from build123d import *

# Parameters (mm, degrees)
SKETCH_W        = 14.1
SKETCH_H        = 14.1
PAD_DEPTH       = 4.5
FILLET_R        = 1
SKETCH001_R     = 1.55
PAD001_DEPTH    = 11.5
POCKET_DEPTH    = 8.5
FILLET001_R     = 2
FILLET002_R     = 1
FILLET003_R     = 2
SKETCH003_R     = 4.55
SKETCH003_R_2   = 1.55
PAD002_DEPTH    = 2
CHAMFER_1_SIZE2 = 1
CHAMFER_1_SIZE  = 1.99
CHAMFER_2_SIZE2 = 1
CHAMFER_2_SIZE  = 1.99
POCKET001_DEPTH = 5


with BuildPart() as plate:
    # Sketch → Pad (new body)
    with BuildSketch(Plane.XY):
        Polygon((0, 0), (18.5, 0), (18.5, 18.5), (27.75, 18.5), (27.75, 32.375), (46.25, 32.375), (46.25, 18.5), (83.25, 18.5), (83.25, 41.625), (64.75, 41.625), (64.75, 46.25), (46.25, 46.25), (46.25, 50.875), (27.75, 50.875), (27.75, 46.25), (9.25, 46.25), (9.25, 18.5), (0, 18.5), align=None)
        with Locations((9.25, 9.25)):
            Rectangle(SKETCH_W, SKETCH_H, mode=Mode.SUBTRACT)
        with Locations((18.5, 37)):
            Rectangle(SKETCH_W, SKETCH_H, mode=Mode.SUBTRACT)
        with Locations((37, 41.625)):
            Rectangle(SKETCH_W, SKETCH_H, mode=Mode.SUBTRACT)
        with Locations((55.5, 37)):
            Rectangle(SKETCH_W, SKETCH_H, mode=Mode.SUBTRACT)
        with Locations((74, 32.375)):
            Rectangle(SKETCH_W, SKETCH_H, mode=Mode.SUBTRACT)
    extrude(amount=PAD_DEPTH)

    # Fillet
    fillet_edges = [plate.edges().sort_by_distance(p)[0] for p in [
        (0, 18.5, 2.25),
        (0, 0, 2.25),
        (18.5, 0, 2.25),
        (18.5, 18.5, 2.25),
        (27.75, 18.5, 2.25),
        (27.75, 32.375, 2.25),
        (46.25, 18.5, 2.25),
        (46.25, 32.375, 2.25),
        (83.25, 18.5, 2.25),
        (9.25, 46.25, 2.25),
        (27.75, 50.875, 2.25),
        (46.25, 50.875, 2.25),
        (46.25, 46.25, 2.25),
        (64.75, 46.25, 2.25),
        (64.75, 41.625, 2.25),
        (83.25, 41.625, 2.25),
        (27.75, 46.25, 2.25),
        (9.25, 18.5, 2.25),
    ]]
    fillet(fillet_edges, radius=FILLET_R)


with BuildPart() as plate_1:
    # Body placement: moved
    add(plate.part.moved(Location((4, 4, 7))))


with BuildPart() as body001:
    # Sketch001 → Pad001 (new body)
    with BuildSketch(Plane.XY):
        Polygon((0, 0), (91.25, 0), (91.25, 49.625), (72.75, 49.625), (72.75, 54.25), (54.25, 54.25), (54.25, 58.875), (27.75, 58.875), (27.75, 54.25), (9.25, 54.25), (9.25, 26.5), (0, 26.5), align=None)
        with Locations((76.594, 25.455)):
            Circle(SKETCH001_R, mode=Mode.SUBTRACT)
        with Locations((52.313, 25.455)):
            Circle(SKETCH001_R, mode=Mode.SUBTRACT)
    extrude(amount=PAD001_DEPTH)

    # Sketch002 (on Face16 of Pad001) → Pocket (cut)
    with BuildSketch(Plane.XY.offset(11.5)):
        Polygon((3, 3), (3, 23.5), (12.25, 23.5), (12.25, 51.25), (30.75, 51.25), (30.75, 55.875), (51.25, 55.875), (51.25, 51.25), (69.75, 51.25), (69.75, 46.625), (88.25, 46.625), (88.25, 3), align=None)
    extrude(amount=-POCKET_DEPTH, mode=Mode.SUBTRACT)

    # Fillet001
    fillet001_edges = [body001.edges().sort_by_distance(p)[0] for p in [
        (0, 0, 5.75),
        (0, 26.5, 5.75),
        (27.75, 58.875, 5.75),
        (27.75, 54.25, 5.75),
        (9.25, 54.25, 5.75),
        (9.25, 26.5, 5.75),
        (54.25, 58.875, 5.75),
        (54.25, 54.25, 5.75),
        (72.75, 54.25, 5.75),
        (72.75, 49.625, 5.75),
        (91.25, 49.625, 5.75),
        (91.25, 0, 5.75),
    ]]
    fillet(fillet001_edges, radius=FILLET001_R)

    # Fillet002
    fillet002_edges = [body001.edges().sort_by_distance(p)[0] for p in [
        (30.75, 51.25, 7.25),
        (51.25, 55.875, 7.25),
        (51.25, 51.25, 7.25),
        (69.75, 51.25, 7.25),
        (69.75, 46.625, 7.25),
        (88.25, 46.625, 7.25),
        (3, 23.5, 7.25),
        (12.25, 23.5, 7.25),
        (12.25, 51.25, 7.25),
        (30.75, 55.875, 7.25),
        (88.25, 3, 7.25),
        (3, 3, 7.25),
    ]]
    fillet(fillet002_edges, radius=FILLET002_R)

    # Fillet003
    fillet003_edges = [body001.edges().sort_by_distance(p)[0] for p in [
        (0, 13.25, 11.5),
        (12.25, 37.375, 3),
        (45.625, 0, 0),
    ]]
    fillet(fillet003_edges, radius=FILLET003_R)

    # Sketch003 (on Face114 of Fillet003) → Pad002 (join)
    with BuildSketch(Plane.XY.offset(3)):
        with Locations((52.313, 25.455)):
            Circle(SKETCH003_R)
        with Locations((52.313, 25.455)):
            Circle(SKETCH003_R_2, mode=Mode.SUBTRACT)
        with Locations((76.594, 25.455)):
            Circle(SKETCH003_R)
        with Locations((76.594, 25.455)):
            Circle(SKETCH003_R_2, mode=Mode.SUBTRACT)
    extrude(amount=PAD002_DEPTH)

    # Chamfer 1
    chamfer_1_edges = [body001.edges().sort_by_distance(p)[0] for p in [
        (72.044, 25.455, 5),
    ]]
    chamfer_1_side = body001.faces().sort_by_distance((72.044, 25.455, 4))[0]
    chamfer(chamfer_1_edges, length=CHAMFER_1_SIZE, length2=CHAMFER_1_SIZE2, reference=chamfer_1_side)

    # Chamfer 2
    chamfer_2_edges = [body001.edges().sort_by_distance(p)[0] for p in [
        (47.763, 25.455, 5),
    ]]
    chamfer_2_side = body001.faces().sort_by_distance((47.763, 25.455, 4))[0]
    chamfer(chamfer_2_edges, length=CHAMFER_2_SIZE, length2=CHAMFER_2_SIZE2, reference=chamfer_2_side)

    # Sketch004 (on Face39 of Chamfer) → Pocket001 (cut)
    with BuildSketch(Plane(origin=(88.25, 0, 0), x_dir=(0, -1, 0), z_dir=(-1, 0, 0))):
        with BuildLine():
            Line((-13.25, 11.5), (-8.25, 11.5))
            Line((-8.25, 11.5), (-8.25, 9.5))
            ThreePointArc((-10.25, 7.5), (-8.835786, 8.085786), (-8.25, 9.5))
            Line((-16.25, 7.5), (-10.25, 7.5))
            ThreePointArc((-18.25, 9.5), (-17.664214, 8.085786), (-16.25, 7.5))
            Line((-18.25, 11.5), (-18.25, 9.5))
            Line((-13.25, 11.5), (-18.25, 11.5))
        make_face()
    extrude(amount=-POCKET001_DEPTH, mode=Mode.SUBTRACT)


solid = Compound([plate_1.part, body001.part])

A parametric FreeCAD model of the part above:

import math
import FreeCAD as App
import Part
import Sketcher
from FreeCAD import Vector


def edges_at(feature, points):
    """Names of the edges that pass closest to the given points."""
    edges = feature.Shape.Edges
    near = lambda p: min(range(len(edges)), key=lambda i: edges[i].distToShape(Part.Vertex(*p))[0])
    return sorted({f"Edge{near(p) + 1}" for p in points})


def add_polygon(sketch, points):
    """Adds a closed chain of lines whose ends are joined by coincident constraints."""
    first, n = sketch.GeometryCount, len(points)
    for a, b in zip(points, points[1:] + points[:1]):
        sketch.addGeometry(Part.LineSegment(App.Vector(*a, 0), App.Vector(*b, 0)), False)
    for i in range(n):
        sketch.addConstraint(Sketcher.Constraint("Coincident", first + i, 2, first + (i + 1) % n, 1))

doc = App.newDocument("Part")
body = doc.addObject("PartDesign::Body", "Body")

sketch1 = body.newObject("Sketcher::SketchObject", "Sketch")
sketch1.AttachmentSupport = (doc.getObject("XY_Plane"), [""])
sketch1.MapMode = "FlatFace"
add_polygon(sketch1, [(0, 0), (18.5, 0), (18.5, 18.5), (27.8, 18.5), (27.8, 32.4), (46.2, 32.4), (46.2, 18.5), (83.2, 18.5), (83.2, 41.6), (64.8, 41.6), (64.8, 46.2), (46.2, 46.2), (46.2, 50.9), (27.8, 50.9), (27.8, 46.2), (9.2, 46.2), (9.2, 18.5), (0, 18.5)])
add_polygon(sketch1, [(16.3, 2.2), (2.2, 2.2), (2.2, 16.3), (16.3, 16.3)])
add_polygon(sketch1, [(25.6, 29.9), (11.4, 29.9), (11.4, 44), (25.6, 44)])
add_polygon(sketch1, [(44, 34.6), (29.9, 34.6), (29.9, 48.7), (44, 48.7)])
add_polygon(sketch1, [(62.5, 29.9), (48.5, 29.9), (48.5, 44), (62.5, 44)])
add_polygon(sketch1, [(81, 25.3), (67, 25.3), (67, 39.4), (81, 39.4)])
sketch1.addConstraint([
    Sketcher.Constraint("Horizontal", 0),
    Sketcher.Constraint("Vertical", 1),
    Sketcher.Constraint("Horizontal", 2),
    Sketcher.Constraint("Vertical", 3),
    Sketcher.Constraint("Horizontal", 4),
    Sketcher.Constraint("Vertical", 5),
    Sketcher.Constraint("Horizontal", 6),
    Sketcher.Constraint("Vertical", 7),
    Sketcher.Constraint("Horizontal", 8),
    Sketcher.Constraint("Vertical", 9),
    Sketcher.Constraint("Horizontal", 10),
    Sketcher.Constraint("Vertical", 11),
    Sketcher.Constraint("Horizontal", 12),
    Sketcher.Constraint("Vertical", 13),
    Sketcher.Constraint("Horizontal", 14),
    Sketcher.Constraint("Vertical", 15),
    Sketcher.Constraint("Horizontal", 16),
    Sketcher.Constraint("Vertical", 17),
    Sketcher.Constraint("Horizontal", 18),
    Sketcher.Constraint("Vertical", 19),
    Sketcher.Constraint("Horizontal", 20),
    Sketcher.Constraint("Vertical", 21),
    Sketcher.Constraint("Horizontal", 22),
    Sketcher.Constraint("Vertical", 23),
    Sketcher.Constraint("Horizontal", 24),
    Sketcher.Constraint("Vertical", 25),
    Sketcher.Constraint("Horizontal", 26),
    Sketcher.Constraint("Vertical", 27),
    Sketcher.Constraint("Horizontal", 28),
    Sketcher.Constraint("Vertical", 29),
    Sketcher.Constraint("Horizontal", 30),
    Sketcher.Constraint("Vertical", 31),
    Sketcher.Constraint("Horizontal", 32),
    Sketcher.Constraint("Vertical", 33),
    Sketcher.Constraint("Horizontal", 34),
    Sketcher.Constraint("Vertical", 35),
    Sketcher.Constraint("Horizontal", 36),
    Sketcher.Constraint("Vertical", 37),
    Sketcher.Constraint("Coincident", 17, 2, -1, 1),
    Sketcher.Constraint("Horizontal", 2, 2, 5, 2),
    Sketcher.Constraint("Horizontal", 10, 2, 13, 2),
    Sketcher.Constraint("Horizontal", 6, 2, 15, 2),
    Sketcher.Constraint("Horizontal", 25, 2, 30, 2),
    Sketcher.Constraint("Horizontal", 24, 2, 31, 2),
    Sketcher.Constraint("Vertical", 5, 2, 10, 2),
    Sketcher.Constraint("Vertical", 3, 2, 12, 2),
    Sketcher.Constraint("Equal", 0, 4),
    Sketcher.Constraint("Equal", 4, 8),
    Sketcher.Constraint("Equal", 8, 10),
    Sketcher.Constraint("Equal", 12, 14),
    Sketcher.Constraint("Equal", 20, 22),
    Sketcher.Constraint("Equal", 24, 26),
    Sketcher.Constraint("Equal", 28, 30),
    Sketcher.Constraint("Equal", 32, 34),
    Sketcher.Constraint("Equal", 14, 1),
    Sketcher.Constraint("Equal", 9, 11),
    Sketcher.Constraint("Equal", 36, 19),
    Sketcher.Constraint("Equal", 21, 23),
    Sketcher.Constraint("Equal", 25, 27),
    Sketcher.Constraint("Equal", 33, 35),
    Sketcher.Constraint("DistanceX", 6, 1, 6, 2, 37.0),
    Sketcher.Constraint("DistanceX", 18, 2, 18, 1, 14.1),
    Sketcher.Constraint("DistanceX", 2, 1, 2, 2, 9.25),
    Sketcher.Constraint("DistanceY", 15, 2, 15, 1, 27.75),
    Sketcher.Constraint("DistanceX", -1, 1, 18, 2, 2.2),
    Sketcher.Constraint("DistanceY", -1, 1, 18, 2, 2.2),
    Sketcher.Constraint("DistanceY", 4, 2, 11, 2, 18.5),
    Sketcher.Constraint("DistanceX", 15, 2, 22, 2, 2.2),
    Sketcher.Constraint("DistanceY", 22, 2, 14, 2, 16.3),
    Sketcher.Constraint("DistanceX", 3, 2, 26, 2, 2.2),
    Sketcher.Constraint("DistanceY", 3, 2, 26, 2, 2.2),
    Sketcher.Constraint("DistanceX", 4, 2, 30, 2, 2.2),
    Sketcher.Constraint("DistanceX", 33, 2, 34, 2, 4.4),
    Sketcher.Constraint("DistanceY", 34, 2, 8, 2, 16.3),
    Sketcher.Constraint("DistanceY", 3, 1, 3, 2, 13.875),
])
pad1 = body.newObject("PartDesign::Pad", "Pad")
pad1.Profile = sketch1
pad1.Length = 4.5
doc.recompute()

fillet = body.newObject("PartDesign::Fillet", "Fillet")
fillet.Base = (pad1, edges_at(pad1, [
    (0, 18.5, 2.25),
    (0, 0, 2.25),
    (18.5, 0, 2.25),
    (18.5, 18.5, 2.25),
    (27.75, 18.5, 2.25),
    (27.75, 32.375, 2.25),
    (46.25, 18.5, 2.25),
    (46.25, 32.375, 2.25),
    (83.25, 18.5, 2.25),
    (9.25, 46.25, 2.25),
    (27.75, 50.875, 2.25),
    (46.25, 50.875, 2.25),
    (46.25, 46.25, 2.25),
    (64.75, 46.25, 2.25),
    (64.75, 41.625, 2.25),
    (83.25, 41.625, 2.25),
    (27.75, 46.25, 2.25),
    (9.25, 18.5, 2.25),
]))
fillet.Radius = 1
body2 = doc.addObject("PartDesign::Body", "Body001")
doc.recompute()

body.Placement = App.Placement(Vector(4, 4, 7), App.Rotation(Vector(0, 0, 1), 0))
boolean = body2.newObject("PartDesign::Boolean", "Boolean")
boolean.Type = "Fuse"
boolean.addObjects([body])
body3 = doc.addObject("PartDesign::Body", "Body002")

sketch2 = body3.newObject("Sketcher::SketchObject", "Sketch001")
sketch2.AttachmentSupport = (doc.getObject("XY_Plane002"), [""])
sketch2.MapMode = "FlatFace"
add_polygon(sketch2, [(0, 0), (91.2, 0), (91.2, 49.6), (72.8, 49.6), (72.8, 54.2), (54.2, 54.2), (54.2, 58.9), (27.8, 58.9), (27.8, 54.2), (9.2, 54.2), (9.2, 26.5), (0, 26.5)])
sketch2.addGeometry(Part.Circle(Vector(52.3, 25.5, 0), Vector(0, 0, 1), 1.6), False)
sketch2.addGeometry(Part.Circle(Vector(76.6, 25.5, 0), Vector(0, 0, 1), 1.6), False)
sketch2.addConstraint([
    Sketcher.Constraint("Horizontal", 0),
    Sketcher.Constraint("Vertical", 1),
    Sketcher.Constraint("Horizontal", 2),
    Sketcher.Constraint("Vertical", 3),
    Sketcher.Constraint("Horizontal", 4),
    Sketcher.Constraint("Vertical", 5),
    Sketcher.Constraint("Horizontal", 6),
    Sketcher.Constraint("Vertical", 7),
    Sketcher.Constraint("Horizontal", 8),
    Sketcher.Constraint("Vertical", 9),
    Sketcher.Constraint("Horizontal", 10),
    Sketcher.Constraint("Vertical", 11),
    Sketcher.Constraint("Coincident", 11, 2, -1, 1),
    Sketcher.Constraint("Equal", 12, 13),
    Sketcher.Constraint("Horizontal", 12, 3, 13, 3),
    Sketcher.Constraint("Horizontal", 4, 2, 7, 2),
    Sketcher.Constraint("Equal", 2, 4),
    Sketcher.Constraint("Equal", 4, 8),
    Sketcher.Constraint("Equal", 3, 5),
    Sketcher.Constraint("Equal", 6, 11),
    Sketcher.Constraint("Diameter", 12, 3.1),
    Sketcher.Constraint("DistanceX", 2, 2, 2, 1, 18.5),
    Sketcher.Constraint("DistanceX", 6, 2, 6, 1, 26.5),
    Sketcher.Constraint("DistanceX", 0, 1, 0, 2, 91.25),
    Sketcher.Constraint("DistanceY", 9, 2, 9, 1, 27.75),
    Sketcher.Constraint("DistanceY", 1, 1, 1, 2, 49.625),
    Sketcher.Constraint("DistanceY", 13, 3, 1, 2, 24.17),
    Sketcher.Constraint("DistanceX", -1, 1, 12, 3, 52.313),
    Sketcher.Constraint("DistanceX", -1, 1, 13, 3, 76.594),
])
pad2 = body3.newObject("PartDesign::Pad", "Pad001")
pad2.Profile = sketch2
pad2.Length = 11.5

sketch3 = body3.newObject("Sketcher::SketchObject", "Sketch002")
sketch3.AttachmentSupport = (doc.getObject("XY_Plane002"), [""])
sketch3.MapMode = "FlatFace"
sketch3.AttachmentOffset = App.Placement(Vector(0, 0, 11.5), App.Rotation())
add_polygon(sketch3, [(3, 23.5), (3, 3), (88.2, 3), (88.2, 46.6), (69.8, 46.6), (69.8, 51.2), (51.2, 51.2), (51.2, 55.9), (30.8, 55.9), (30.8, 51.2), (12.2, 51.2), (12.2, 23.5)])
sketch3.addConstraint([
    Sketcher.Constraint("Vertical", 0),
    Sketcher.Constraint("Horizontal", 1),
    Sketcher.Constraint("Vertical", 2),
    Sketcher.Constraint("Horizontal", 3),
    Sketcher.Constraint("Vertical", 4),
    Sketcher.Constraint("Horizontal", 5),
    Sketcher.Constraint("Vertical", 6),
    Sketcher.Constraint("Horizontal", 7),
    Sketcher.Constraint("Vertical", 8),
    Sketcher.Constraint("Horizontal", 9),
    Sketcher.Constraint("Vertical", 10),
    Sketcher.Constraint("Horizontal", 11),
    Sketcher.Constraint("Horizontal", 5, 2, 8, 2),
    Sketcher.Constraint("Equal", 3, 5),
    Sketcher.Constraint("Equal", 5, 9),
    Sketcher.Constraint("Equal", 7, 0),
    Sketcher.Constraint("Equal", 4, 6),
    Sketcher.Constraint("DistanceX", 3, 2, 3, 1, 18.5),
    Sketcher.Constraint("DistanceX", 7, 2, 7, 1, 20.5),
    Sketcher.Constraint("DistanceX", -1, 1, 0, 2, 3.0),
    Sketcher.Constraint("DistanceY", -1, 1, 0, 2, 3.0),
    Sketcher.Constraint("DistanceX", 1, 1, 1, 2, 85.25),
    Sketcher.Constraint("DistanceY", 10, 2, 10, 1, 27.75),
    Sketcher.Constraint("DistanceY", 2, 1, 2, 2, 43.625),
])
pocket1 = body3.newObject("PartDesign::Pocket", "Pocket")
pocket1.Profile = sketch3
pocket1.Length = 8.5
doc.recompute()

fillet2 = body3.newObject("PartDesign::Fillet", "Fillet001")
fillet2.Base = (pocket1, edges_at(pocket1, [
    (0, 0, 5.75),
    (0, 26.5, 5.75),
    (27.75, 58.875, 5.75),
    (27.75, 54.25, 5.75),
    (9.25, 54.25, 5.75),
    (9.25, 26.5, 5.75),
    (54.25, 58.875, 5.75),
    (54.25, 54.25, 5.75),
    (72.75, 54.25, 5.75),
    (72.75, 49.625, 5.75),
    (91.25, 49.625, 5.75),
    (91.25, 0, 5.75),
]))
fillet2.Radius = 2
doc.recompute()

fillet3 = body3.newObject("PartDesign::Fillet", "Fillet002")
fillet3.Base = (fillet2, edges_at(fillet2, [
    (30.75, 51.25, 7.25),
    (51.25, 55.875, 7.25),
    (51.25, 51.25, 7.25),
    (69.75, 51.25, 7.25),
    (69.75, 46.625, 7.25),
    (88.25, 46.625, 7.25),
    (3, 23.5, 7.25),
    (12.25, 23.5, 7.25),
    (12.25, 51.25, 7.25),
    (30.75, 55.875, 7.25),
    (88.25, 3, 7.25),
    (3, 3, 7.25),
]))
fillet3.Radius = 1
doc.recompute()

fillet4 = body3.newObject("PartDesign::Fillet", "Fillet003")
fillet4.Base = (fillet3, edges_at(fillet3, [(0, 13.25, 11.5), (12.25, 37.375, 3), (45.625, 0, 0)]))
fillet4.Radius = 2

sketch4 = body3.newObject("Sketcher::SketchObject", "Sketch003")
sketch4.AttachmentSupport = (doc.getObject("XY_Plane002"), [""])
sketch4.MapMode = "FlatFace"
sketch4.AttachmentOffset = App.Placement(Vector(0, 0, 3), App.Rotation())
sketch4.addGeometry([
    Part.Circle(Vector(52.3, 25.5, 0), Vector(0, 0, 1), 4.5),
    Part.Circle(Vector(52.3, 25.5, 0), Vector(0, 0, 1), 1.6),
    Part.Circle(Vector(76.6, 25.5, 0), Vector(0, 0, 1), 4.5),
    Part.Circle(Vector(76.6, 25.5, 0), Vector(0, 0, 1), 1.6),
], False)
sketch4.addConstraint([
    Sketcher.Constraint("Coincident", 1, 3, 0, 3),
    Sketcher.Constraint("Coincident", 3, 3, 2, 3),
    Sketcher.Constraint("Equal", 0, 2),
    Sketcher.Constraint("Equal", 1, 3),
    Sketcher.Constraint("Horizontal", 1, 3, 2, 3),
    Sketcher.Constraint("Diameter", 0, 9.1),
    Sketcher.Constraint("Diameter", 1, 3.1),
    Sketcher.Constraint("DistanceX", -1, 1, 0, 3, 52.313),
    Sketcher.Constraint("DistanceY", -1, 1, 0, 3, 25.455),
    Sketcher.Constraint("DistanceX", -1, 1, 2, 3, 76.594),
])
pad3 = body3.newObject("PartDesign::Pad", "Pad002")
pad3.Profile = sketch4
pad3.Length = 2
doc.recompute()

chamfer = body3.newObject("PartDesign::Chamfer", "Chamfer")
chamfer.Base = (pad3, edges_at(pad3, [(72.044, 25.455, 5)]))
chamfer.ChamferType = "Two distances"
chamfer.Size = 1.99
chamfer.Size2 = 1
doc.recompute()

chamfer2 = body3.newObject("PartDesign::Chamfer", "Chamfer001")
chamfer2.Base = (chamfer, edges_at(chamfer, [(47.763, 25.455, 5)]))
chamfer2.ChamferType = "Two distances"
chamfer2.Size = 1.99
chamfer2.Size2 = 1

sketch5 = body3.newObject("Sketcher::SketchObject", "Sketch004")
sketch5.AttachmentSupport = (doc.getObject("YZ_Plane002"), [""])
sketch5.MapMode = "FlatFace"
sketch5.AttachmentOffset = App.Placement(Vector(0, 0, 88.25), App.Rotation())
sketch5.addGeometry([
    Part.LineSegment(Vector(8.2, 11.5, 0), Vector(18.2, 11.5, 0)),
    Part.LineSegment(Vector(18.2, 11.5, 0), Vector(18.2, 9.5, 0)),
    Part.ArcOfCircle(Part.Circle(Vector(16.3, 9.5, 0), Vector(0, 0, 1), 2), math.radians(-90), math.radians(0)),
    Part.LineSegment(Vector(16.2, 7.5, 0), Vector(10.2, 7.5, 0)),
    Part.ArcOfCircle(Part.Circle(Vector(10.2, 9.5, 0), Vector(0, 0, 1), 2), math.radians(180), math.radians(270)),
    Part.LineSegment(Vector(8.2, 9.5, 0), Vector(8.2, 11.5, 0)),
], False)
sketch5.addConstraint([
    Sketcher.Constraint("Coincident", 0, 2, 1, 1),
    Sketcher.Constraint("Tangent", 1, 2, 2, 2),
    Sketcher.Constraint("Tangent", 2, 1, 3, 1),
    Sketcher.Constraint("Tangent", 3, 2, 4, 2),
    Sketcher.Constraint("Tangent", 4, 1, 5, 1),
    Sketcher.Constraint("Coincident", 5, 2, 0, 1),
    Sketcher.Constraint("Horizontal", 0),
    Sketcher.Constraint("Vertical", 1),
    Sketcher.Constraint("Horizontal", 3),
    Sketcher.Constraint("Vertical", 5),
    Sketcher.Constraint("Equal", 2, 4),
    Sketcher.Constraint("Radius", 2, 1.999999),
    Sketcher.Constraint("DistanceX", 0, 1, 0, 2, 10.0),
    Sketcher.Constraint("DistanceY", 1, 2, 1, 1, 2.0),
    Sketcher.Constraint("DistanceY", -1, 1, 2, 3, 9.499999),
    Sketcher.Constraint("DistanceX", -1, 1, 2, 3, 16.250001),
])
pocket2 = body3.newObject("PartDesign::Pocket", "Pocket001")
pocket2.Profile = sketch5
pocket2.Length = 5
pocket2.Reversed = True

doc.recompute()
